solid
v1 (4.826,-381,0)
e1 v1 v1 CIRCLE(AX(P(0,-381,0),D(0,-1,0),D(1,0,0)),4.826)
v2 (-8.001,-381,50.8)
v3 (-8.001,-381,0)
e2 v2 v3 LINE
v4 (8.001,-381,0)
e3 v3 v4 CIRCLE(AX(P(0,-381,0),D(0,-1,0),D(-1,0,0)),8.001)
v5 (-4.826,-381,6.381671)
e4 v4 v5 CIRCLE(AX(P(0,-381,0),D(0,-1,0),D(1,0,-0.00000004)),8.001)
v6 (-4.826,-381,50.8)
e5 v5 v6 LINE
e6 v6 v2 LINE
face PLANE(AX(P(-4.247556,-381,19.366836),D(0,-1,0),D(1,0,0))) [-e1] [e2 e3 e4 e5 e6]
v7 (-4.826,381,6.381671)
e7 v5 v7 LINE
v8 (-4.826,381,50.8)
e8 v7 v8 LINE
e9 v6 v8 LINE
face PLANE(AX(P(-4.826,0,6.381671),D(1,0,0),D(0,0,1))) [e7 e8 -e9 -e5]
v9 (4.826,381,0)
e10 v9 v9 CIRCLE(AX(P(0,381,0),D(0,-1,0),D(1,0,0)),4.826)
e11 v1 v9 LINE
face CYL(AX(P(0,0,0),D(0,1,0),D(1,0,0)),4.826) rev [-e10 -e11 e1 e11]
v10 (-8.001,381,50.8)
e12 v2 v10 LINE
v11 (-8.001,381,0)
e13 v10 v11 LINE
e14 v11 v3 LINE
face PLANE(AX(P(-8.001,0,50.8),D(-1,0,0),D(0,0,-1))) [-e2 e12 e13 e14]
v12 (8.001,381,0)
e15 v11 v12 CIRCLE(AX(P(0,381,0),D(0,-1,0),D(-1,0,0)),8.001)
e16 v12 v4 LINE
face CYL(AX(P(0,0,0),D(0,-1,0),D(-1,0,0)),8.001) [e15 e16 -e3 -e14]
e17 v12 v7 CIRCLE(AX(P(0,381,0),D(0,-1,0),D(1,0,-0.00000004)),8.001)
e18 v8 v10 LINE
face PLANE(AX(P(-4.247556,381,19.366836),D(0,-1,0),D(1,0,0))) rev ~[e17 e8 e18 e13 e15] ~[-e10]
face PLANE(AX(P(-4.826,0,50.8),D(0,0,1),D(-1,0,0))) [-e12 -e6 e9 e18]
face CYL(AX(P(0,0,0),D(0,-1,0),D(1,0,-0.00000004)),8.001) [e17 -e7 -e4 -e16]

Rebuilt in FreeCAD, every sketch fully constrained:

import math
import FreeCAD as App
import Part
import Sketcher
Q = App.Units.Quantity

doc = App.newDocument("Part")
body = doc.addObject("PartDesign::Body", "Body")

# Sketch on XZ plane
sketch1 = body.newObject("Sketcher::SketchObject", "Sketch")
sketch1.AttachmentSupport = (doc.getObject("XZ_Plane"), [""])
sketch1.MapMode = "FlatFace"
sketch1.addGeometry([
    Part.LineSegment(App.Vector(-8, 50.8, 0), App.Vector(-8, 0, 0)),  # 0
    Part.ArcOfCircle(Part.Circle(App.Vector(0, 0, 0), App.Vector(0, 0, 1), 8), math.radians(180), math.radians(360)),  # 1
    Part.ArcOfCircle(Part.Circle(App.Vector(0, 0, 0), App.Vector(0, 0, 1), 8), math.radians(0), math.radians(127)),  # 2
    Part.LineSegment(App.Vector(-4.8, 6.4, 0), App.Vector(-4.8, 50.8, 0)),  # 3
    Part.LineSegment(App.Vector(-4.8, 50.8, 0), App.Vector(-8, 50.8, 0)),  # 4
    Part.Circle(App.Vector(0, 0, 0), App.Vector(0, 0, 1), 4.8),  # 5
], False)
sketch1.addConstraint([
    Sketcher.Constraint("Tangent", 0, 2, 1, 1),
    Sketcher.Constraint("Tangent", 1, 2, 2, 1),
    Sketcher.Constraint("Coincident", 2, 2, 3, 1),
    Sketcher.Constraint("Coincident", 3, 2, 4, 1),
    Sketcher.Constraint("Coincident", 4, 2, 0, 1),
    Sketcher.Constraint("Vertical", 0),
    Sketcher.Constraint("Vertical", 3),
    Sketcher.Constraint("Horizontal", 4),
    Sketcher.Constraint("Coincident", 1, 3, -1, 1),
    Sketcher.Constraint("Coincident", 5, 3, -1, 1),
    Sketcher.Constraint("Equal", 1, 2),
    Sketcher.Constraint("PointOnObject", 1, 2, -1),
    Sketcher.Constraint("Diameter", 5, Q("0.38 in")),
    Sketcher.Constraint("DistanceY", 0, 2, 0, 1, Q("2 in")),
    Sketcher.Constraint("Radius", 1, Q("0.315 in")),
    Sketcher.Constraint("DistanceX", 4, 2, 4, 1, Q("0.125 in")),
])
pad1 = body.newObject("PartDesign::Pad", "Pad")
pad1.Profile = sketch1
pad1.Length = Q("30 in")
pad1.Midplane = True

doc.recompute()
